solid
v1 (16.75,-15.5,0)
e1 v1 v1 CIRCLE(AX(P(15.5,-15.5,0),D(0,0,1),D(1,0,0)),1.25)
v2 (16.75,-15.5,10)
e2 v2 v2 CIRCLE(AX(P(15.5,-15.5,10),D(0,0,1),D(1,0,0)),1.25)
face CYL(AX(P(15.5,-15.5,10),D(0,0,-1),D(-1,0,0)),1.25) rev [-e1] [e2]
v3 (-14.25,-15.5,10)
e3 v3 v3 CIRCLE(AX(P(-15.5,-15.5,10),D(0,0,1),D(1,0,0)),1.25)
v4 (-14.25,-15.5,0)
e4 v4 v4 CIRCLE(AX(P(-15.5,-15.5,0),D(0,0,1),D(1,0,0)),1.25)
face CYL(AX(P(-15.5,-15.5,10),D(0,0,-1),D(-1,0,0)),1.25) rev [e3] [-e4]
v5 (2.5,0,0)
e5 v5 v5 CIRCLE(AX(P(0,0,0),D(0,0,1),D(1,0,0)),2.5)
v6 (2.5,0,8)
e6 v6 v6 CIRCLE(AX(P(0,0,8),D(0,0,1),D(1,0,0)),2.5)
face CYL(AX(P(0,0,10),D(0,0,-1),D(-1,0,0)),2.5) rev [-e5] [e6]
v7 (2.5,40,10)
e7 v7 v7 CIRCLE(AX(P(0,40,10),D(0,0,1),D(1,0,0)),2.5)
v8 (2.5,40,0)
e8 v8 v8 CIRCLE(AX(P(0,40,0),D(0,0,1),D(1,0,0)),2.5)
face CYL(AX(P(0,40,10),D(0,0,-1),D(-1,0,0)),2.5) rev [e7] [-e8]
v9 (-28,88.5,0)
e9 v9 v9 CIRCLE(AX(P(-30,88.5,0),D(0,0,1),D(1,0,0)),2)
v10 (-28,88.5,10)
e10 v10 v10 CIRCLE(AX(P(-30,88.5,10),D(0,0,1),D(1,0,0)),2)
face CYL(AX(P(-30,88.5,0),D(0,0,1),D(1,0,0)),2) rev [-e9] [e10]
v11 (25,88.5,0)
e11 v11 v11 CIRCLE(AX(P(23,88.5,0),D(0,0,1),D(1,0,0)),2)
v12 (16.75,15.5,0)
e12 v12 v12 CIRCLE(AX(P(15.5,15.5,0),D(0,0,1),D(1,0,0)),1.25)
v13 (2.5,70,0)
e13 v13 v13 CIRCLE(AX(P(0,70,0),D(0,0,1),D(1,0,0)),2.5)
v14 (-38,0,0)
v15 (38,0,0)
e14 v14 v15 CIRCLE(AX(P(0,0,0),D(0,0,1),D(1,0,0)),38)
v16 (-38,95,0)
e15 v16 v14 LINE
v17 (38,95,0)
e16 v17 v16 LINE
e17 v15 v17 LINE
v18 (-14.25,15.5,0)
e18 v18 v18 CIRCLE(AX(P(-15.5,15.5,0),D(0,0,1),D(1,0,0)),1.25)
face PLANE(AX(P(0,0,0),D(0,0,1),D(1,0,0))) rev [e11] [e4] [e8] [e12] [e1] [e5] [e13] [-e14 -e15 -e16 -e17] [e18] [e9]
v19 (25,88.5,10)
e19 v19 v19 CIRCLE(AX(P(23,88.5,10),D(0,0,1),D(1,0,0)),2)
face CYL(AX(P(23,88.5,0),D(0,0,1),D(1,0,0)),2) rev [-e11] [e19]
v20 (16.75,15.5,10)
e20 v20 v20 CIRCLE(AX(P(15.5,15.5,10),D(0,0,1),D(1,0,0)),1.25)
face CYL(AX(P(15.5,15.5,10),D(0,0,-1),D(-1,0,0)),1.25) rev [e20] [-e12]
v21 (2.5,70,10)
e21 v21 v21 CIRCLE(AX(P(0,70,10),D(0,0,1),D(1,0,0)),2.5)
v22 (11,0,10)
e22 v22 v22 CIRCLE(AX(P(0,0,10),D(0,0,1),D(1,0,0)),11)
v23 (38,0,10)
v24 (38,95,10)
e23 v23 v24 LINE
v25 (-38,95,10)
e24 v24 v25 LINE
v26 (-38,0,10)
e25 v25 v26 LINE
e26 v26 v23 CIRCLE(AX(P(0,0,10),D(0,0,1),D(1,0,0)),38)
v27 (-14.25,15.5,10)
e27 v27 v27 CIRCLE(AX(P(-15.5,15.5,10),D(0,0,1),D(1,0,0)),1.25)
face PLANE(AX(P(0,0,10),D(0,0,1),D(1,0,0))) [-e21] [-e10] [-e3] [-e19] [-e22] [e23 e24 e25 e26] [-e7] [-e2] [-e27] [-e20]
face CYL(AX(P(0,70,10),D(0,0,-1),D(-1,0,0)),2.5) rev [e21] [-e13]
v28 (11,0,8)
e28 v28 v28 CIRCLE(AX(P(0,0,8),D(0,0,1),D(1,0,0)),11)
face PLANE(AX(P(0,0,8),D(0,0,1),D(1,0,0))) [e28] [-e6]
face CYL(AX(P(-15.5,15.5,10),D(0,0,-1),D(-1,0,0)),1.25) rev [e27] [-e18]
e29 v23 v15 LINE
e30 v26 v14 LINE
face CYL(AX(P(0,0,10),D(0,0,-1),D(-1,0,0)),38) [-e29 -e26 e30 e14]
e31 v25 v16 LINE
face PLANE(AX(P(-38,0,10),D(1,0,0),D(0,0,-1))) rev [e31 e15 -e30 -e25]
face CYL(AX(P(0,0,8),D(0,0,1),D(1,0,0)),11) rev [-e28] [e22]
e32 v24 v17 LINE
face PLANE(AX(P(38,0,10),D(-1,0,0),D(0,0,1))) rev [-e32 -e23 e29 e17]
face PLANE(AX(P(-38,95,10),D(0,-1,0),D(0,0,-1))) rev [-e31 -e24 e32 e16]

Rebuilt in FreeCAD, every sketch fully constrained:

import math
import FreeCAD as App
import Part
import Sketcher

V = App.Vector

doc = App.newDocument("Part")
body = doc.addObject("PartDesign::Body", "Body")

# Sketch on XY plane
sketch1 = body.newObject("Sketcher::SketchObject", "Sketch")
sketch1.AttachmentSupport = (doc.getObject("XY_Plane"), [""])
sketch1.MapMode = "FlatFace"
sketch1.addGeometry(Part.LineSegment(V(-38, 95, 0), V(-38, 0, 0)), False)
sketch1.addGeometry(Part.ArcOfCircle(Part.Circle(V(0, 0, 0), V(0, 0, 1), 38), math.radians(180), math.radians(360)), False)
sketch1.addGeometry(Part.LineSegment(V(38, 0, 0), V(38, 95, 0)), False)
sketch1.addGeometry(Part.LineSegment(V(38, 95, 0), V(-38, 95, 0)), False)
sketch1.addGeometry(Part.Circle(V(15.5, -15.5, 0), V(0, 0, 1), 1.25), False)
sketch1.addGeometry(Part.Circle(V(15.5, 15.5, 0), V(0, 0, 1), 1.25), False)
sketch1.addGeometry(Part.Circle(V(0, 0, 0), V(0, 0, 1), 2.5), False)
sketch1.addGeometry(Part.Circle(V(-15.5, -15.5, 0), V(0, 0, 1), 1.25), False)
sketch1.addGeometry(Part.Circle(V(-15.5, 15.5, 0), V(0, 0, 1), 1.25), False)
sketch1.addGeometry(Part.Circle(V(0, 40, 0), V(0, 0, 1), 2.5), False)
sketch1.addGeometry(Part.Circle(V(0, 70, 0), V(0, 0, 1), 2.5), False)
sketch1.addConstraint(Sketcher.Constraint("Tangent", 0, 2, 1, 1))
sketch1.addConstraint(Sketcher.Constraint("Tangent", 1, 2, 2, 1))
sketch1.addConstraint(Sketcher.Constraint("Coincident", 2, 2, 3, 1))
sketch1.addConstraint(Sketcher.Constraint("Coincident", 3, 2, 0, 1))
sketch1.addConstraint(Sketcher.Constraint("Vertical", 0))
sketch1.addConstraint(Sketcher.Constraint("Vertical", 2))
sketch1.addConstraint(Sketcher.Constraint("Horizontal", 3))
sketch1.addConstraint(Sketcher.Constraint("Coincident", 1, 3, -1, 1))
sketch1.addConstraint(Sketcher.Constraint("Coincident", 6, 3, -1, 1))
sketch1.addConstraint(Sketcher.Constraint("Equal", 4, 5))
sketch1.addConstraint(Sketcher.Constraint("Equal", 5, 7))
sketch1.addConstraint(Sketcher.Constraint("Equal", 7, 8))
sketch1.addConstraint(Sketcher.Constraint("Equal", 6, 9))
sketch1.addConstraint(Sketcher.Constraint("Equal", 9, 10))
sketch1.addConstraint(Sketcher.Constraint("Symmetric", 5, 3, 7, 3, -1, 1))
sketch1.addConstraint(Sketcher.Constraint("Symmetric", 4, 3, 8, 3, -1, 1))
sketch1.addConstraint(Sketcher.Constraint("Symmetric", 4, 3, 7, 3, -2))
sketch1.addConstraint(Sketcher.Constraint("PointOnObject", 9, 3, -2))
sketch1.addConstraint(Sketcher.Constraint("PointOnObject", 10, 3, -2))
sketch1.addConstraint(Sketcher.Constraint("Diameter", 6, 5.0))
sketch1.addConstraint(Sketcher.Constraint("Radius", 1, 38.0))
sketch1.addConstraint(Sketcher.Constraint("Diameter", 4, 2.5))
sketch1.addConstraint(Sketcher.Constraint("DistanceY", 0, 2, 0, 1, 95.0))
sketch1.addConstraint(Sketcher.Constraint("DistanceY", -1, 1, 9, 3, 40.0))
sketch1.addConstraint(Sketcher.Constraint("DistanceY", -1, 1, 10, 3, 70.0))
sketch1.addConstraint(Sketcher.Constraint("DistanceY", 4, 3, 5, 3, 31.0))
sketch1.addConstraint(Sketcher.Constraint("DistanceX", 7, 3, 4, 3, 31.0))
pad1 = body.newObject("PartDesign::Pad", "Pad")
pad1.Profile = sketch1
pad1.Length = 10

# Sketch on XY plane
sketch2 = body.newObject("Sketcher::SketchObject", "Sketch001")
sketch2.AttachmentSupport = (doc.getObject("XY_Plane"), [""])
sketch2.MapMode = "FlatFace"
sketch2.AttachmentOffset = App.Placement(V(0, 0, 10), App.Rotation())
sketch2.addGeometry(Part.Circle(V(0, 0, 0), V(0, 0, 1), 11), False)
sketch2.addConstraint(Sketcher.Constraint("Coincident", 0, 3, -1, 1))
sketch2.addConstraint(Sketcher.Constraint("Diameter", 0, 22.0))
pocket1 = body.newObject("PartDesign::Pocket", "Pocket")
pocket1.Profile = sketch2
pocket1.Length = 2

# Sketch on XY plane
sketch3 = body.newObject("Sketcher::SketchObject", "Sketch002")
sketch3.AttachmentSupport = (doc.getObject("XY_Plane"), [""])
sketch3.MapMode = "FlatFace"
sketch3.AttachmentOffset = App.Placement(V(0, 0, 10), App.Rotation())
sketch3.addGeometry(Part.Circle(V(-30, 88.5, 0), V(0, 0, 1), 2), False)
sketch3.addGeometry(Part.Circle(V(23, 88.5, 0), V(0, 0, 1), 2), False)
sketch3.addConstraint(Sketcher.Constraint("Equal", 0, 1))
sketch3.addConstraint(Sketcher.Constraint("Horizontal", 0, 3, 1, 3))
sketch3.addConstraint(Sketcher.Constraint("Diameter", 0, 4.0))
sketch3.addConstraint(Sketcher.Constraint("DistanceX", 0, 3, -1, 1, 30.0))
sketch3.addConstraint(Sketcher.Constraint("DistanceX", -1, 1, 1, 3, 23.0))
sketch3.addConstraint(Sketcher.Constraint("DistanceY", -1, 1, 0, 3, 88.5))
pocket2 = body.newObject("PartDesign::Pocket", "Pocket001")
pocket2.Profile = sketch3
pocket2.Type = "ThroughAll"

doc.recompute()
